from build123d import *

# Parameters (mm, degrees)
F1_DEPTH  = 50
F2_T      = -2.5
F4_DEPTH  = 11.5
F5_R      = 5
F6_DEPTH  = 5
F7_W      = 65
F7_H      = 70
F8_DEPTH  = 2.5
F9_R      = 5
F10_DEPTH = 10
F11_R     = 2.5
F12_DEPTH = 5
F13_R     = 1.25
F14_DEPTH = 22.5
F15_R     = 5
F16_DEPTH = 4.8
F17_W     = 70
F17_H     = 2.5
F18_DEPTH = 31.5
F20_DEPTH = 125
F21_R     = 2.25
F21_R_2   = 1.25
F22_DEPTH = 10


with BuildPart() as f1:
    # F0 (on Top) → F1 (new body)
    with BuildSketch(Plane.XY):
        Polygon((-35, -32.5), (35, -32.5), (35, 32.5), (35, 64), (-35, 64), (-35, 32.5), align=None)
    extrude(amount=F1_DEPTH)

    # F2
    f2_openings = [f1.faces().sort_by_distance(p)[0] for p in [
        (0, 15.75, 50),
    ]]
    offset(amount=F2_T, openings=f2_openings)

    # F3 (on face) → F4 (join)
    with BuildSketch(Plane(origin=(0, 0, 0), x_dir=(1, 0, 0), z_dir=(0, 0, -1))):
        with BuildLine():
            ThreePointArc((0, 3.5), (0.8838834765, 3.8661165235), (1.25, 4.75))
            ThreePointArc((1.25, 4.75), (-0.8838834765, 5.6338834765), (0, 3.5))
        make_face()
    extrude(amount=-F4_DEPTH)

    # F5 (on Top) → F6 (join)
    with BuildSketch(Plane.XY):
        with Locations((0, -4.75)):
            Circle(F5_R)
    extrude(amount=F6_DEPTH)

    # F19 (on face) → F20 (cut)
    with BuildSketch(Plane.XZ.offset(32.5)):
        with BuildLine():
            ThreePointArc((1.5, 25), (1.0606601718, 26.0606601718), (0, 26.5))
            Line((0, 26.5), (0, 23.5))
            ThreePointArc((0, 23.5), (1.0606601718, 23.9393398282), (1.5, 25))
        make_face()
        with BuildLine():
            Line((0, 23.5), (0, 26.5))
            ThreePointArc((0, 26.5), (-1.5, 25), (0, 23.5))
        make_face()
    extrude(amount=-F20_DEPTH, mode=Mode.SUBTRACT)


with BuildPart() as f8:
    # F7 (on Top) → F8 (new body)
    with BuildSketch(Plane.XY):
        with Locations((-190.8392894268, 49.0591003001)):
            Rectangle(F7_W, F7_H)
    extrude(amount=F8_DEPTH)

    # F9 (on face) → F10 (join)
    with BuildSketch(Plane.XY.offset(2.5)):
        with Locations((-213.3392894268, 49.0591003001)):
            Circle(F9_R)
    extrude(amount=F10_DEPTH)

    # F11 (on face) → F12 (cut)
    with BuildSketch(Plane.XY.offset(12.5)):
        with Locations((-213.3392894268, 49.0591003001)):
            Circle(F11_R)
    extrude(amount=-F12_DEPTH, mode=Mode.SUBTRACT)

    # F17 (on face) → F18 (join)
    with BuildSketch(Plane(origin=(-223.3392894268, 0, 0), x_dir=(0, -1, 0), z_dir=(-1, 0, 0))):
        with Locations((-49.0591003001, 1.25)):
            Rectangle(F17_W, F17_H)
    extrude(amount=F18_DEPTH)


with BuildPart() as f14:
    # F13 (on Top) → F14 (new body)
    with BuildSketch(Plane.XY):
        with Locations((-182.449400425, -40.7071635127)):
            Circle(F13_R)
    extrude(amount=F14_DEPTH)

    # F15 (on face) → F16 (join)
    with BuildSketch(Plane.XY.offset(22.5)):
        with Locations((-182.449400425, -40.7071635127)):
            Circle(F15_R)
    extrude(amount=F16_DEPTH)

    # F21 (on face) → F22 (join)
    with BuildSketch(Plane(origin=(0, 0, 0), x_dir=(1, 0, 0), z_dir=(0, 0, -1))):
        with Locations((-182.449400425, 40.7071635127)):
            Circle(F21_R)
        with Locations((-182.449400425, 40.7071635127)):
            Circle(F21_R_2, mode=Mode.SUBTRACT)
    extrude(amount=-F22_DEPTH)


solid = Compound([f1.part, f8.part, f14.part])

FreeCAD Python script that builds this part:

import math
import FreeCAD as App
import Part
import Sketcher

V = App.Vector


def faces_at(feature, points):
    """Names of the faces that lie closest to the given points."""
    faces = feature.Shape.Faces
    near = lambda p: min(range(len(faces)), key=lambda i: faces[i].distToShape(Part.Vertex(*p))[0])
    return sorted({f"Face{near(p) + 1}" for p in points})


def add_polygon(sketch, points):
    """Adds a closed chain of lines whose ends are joined by coincident constraints."""
    first, n = sketch.GeometryCount, len(points)
    for a, b in zip(points, points[1:] + points[:1]):
        sketch.addGeometry(Part.LineSegment(App.Vector(*a, 0), App.Vector(*b, 0)), False)
    for i in range(n):
        sketch.addConstraint(Sketcher.Constraint("Coincident", first + i, 2, first + (i + 1) % n, 1))

doc = App.newDocument("Part")
body = doc.addObject("PartDesign::Body", "Body")

# Sketch on XY plane
sketch1 = body.newObject("Sketcher::SketchObject", "Sketch")
sketch1.AttachmentSupport = (doc.getObject("XY_Plane"), [""])
sketch1.MapMode = "FlatFace"
add_polygon(sketch1, [(-35, -32.5), (35, -32.5), (35, 64), (-35, 64)])  # lines 0-3
sketch1.addConstraint(Sketcher.Constraint("Horizontal", 0))
sketch1.addConstraint(Sketcher.Constraint("Vertical", 1))
sketch1.addConstraint(Sketcher.Constraint("Horizontal", 2))
sketch1.addConstraint(Sketcher.Constraint("Vertical", 3))
sketch1.addConstraint(Sketcher.Constraint("DistanceX", 0, 1, 0, 2, 70.0))
sketch1.addConstraint(Sketcher.Constraint("DistanceY", 1, 1, 1, 2, 96.5))
sketch1.addConstraint(Sketcher.Constraint("DistanceX", -1, 1, 0, 2, 35.0))
sketch1.addConstraint(Sketcher.Constraint("DistanceY", -1, 1, 1, 2, 64.0))
pad1 = body.newObject("PartDesign::Pad", "Pad")
pad1.Profile = sketch1
pad1.Length = 50
doc.recompute()

thickness = body.newObject("PartDesign::Thickness", "Thickness")
thickness.Base = (pad1, faces_at(pad1, [(0, 15.75, 50)]))
thickness.Value = 2.5
thickness.Reversed = True
thickness.Join = "Arc"

# Sketch on XY plane
sketch2 = body.newObject("Sketcher::SketchObject", "Sketch001")
sketch2.AttachmentSupport = (doc.getObject("XY_Plane"), [""])
sketch2.MapMode = "FlatFace"
sketch2.addGeometry(Part.ArcOfCircle(Part.Circle(V(0, -4.75, 0), V(0, 0, 1), 1.25), math.radians(0), math.radians(90)), False)
sketch2.addGeometry(Part.ArcOfCircle(Part.Circle(V(0, -4.75, 0), V(0, 0, 1), 1.25), math.radians(90), math.radians(360)), False)
sketch2.addConstraint(Sketcher.Constraint("Tangent", 0, 1, 1, 2))
sketch2.addConstraint(Sketcher.Constraint("Coincident", 1, 1, 0, 2))
sketch2.addConstraint(Sketcher.Constraint("PointOnObject", 0, 3, -2))
sketch2.addConstraint(Sketcher.Constraint("PointOnObject", 1, 1, -2))
sketch2.addConstraint(Sketcher.Constraint("Horizontal", 1, 3, 0, 1))
sketch2.addConstraint(Sketcher.Constraint("Radius", 0, 1.25))
sketch2.addConstraint(Sketcher.Constraint("DistanceY", 1, 1, -1, 1, 3.5))
pad2 = body.newObject("PartDesign::Pad", "Pad001")
pad2.Profile = sketch2
pad2.Length = 11.5

# Sketch on XY plane
sketch3 = body.newObject("Sketcher::SketchObject", "Sketch002")
sketch3.AttachmentSupport = (doc.getObject("XY_Plane"), [""])
sketch3.MapMode = "FlatFace"
sketch3.addGeometry(Part.Circle(V(0, -4.75, 0), V(0, 0, 1), 5), False)
sketch3.addConstraint(Sketcher.Constraint("PointOnObject", 0, 3, -2))
sketch3.addConstraint(Sketcher.Constraint("Diameter", 0, 10.0))
sketch3.addConstraint(Sketcher.Constraint("DistanceY", 0, 3, -1, 1, 4.75))
pad3 = body.newObject("PartDesign::Pad", "Pad002")
pad3.Profile = sketch3
pad3.Length = 5

# Sketch on XZ plane
sketch4 = body.newObject("Sketcher::SketchObject", "Sketch003")
sketch4.AttachmentSupport = (doc.getObject("XZ_Plane"), [""])
sketch4.MapMode = "FlatFace"
sketch4.AttachmentOffset = App.Placement(V(0, 0, 32.5), App.Rotation())
sketch4.addGeometry(Part.ArcOfCircle(Part.Circle(V(0, 25, 0), V(0, 0, 1), 1.5), math.radians(0), math.radians(90)), False)
sketch4.addGeometry(Part.ArcOfCircle(Part.Circle(V(0, 25, 0), V(0, 0, 1), 1.5), math.radians(90), math.radians(270)), False)
sketch4.addGeometry(Part.ArcOfCircle(Part.Circle(V(0, 25, 0), V(0, 0, 1), 1.5), math.radians(-90), math.radians(0)), False)
sketch4.addConstraint(Sketcher.Constraint("Tangent", 0, 2, 1, 1))
sketch4.addConstraint(Sketcher.Constraint("Tangent", 1, 2, 2, 1))
sketch4.addConstraint(Sketcher.Constraint("Tangent", 2, 2, 0, 1))
sketch4.addConstraint(Sketcher.Constraint("PointOnObject", 0, 3, -2))
sketch4.addConstraint(Sketcher.Constraint("PointOnObject", 0, 2, -2))
sketch4.addConstraint(Sketcher.Constraint("PointOnObject", 1, 2, -2))
sketch4.addConstraint(Sketcher.Constraint("Horizontal", 1, 3, 2, 2))
sketch4.addConstraint(Sketcher.Constraint("Radius", 0, 1.5))
sketch4.addConstraint(Sketcher.Constraint("DistanceY", -1, 1, 0, 3, 25.0))
pocket1 = body.newObject("PartDesign::Pocket", "Pocket")
pocket1.Profile = sketch4
pocket1.Length = 125
body2 = doc.addObject("PartDesign::Body", "Body001")

# Sketch on XY plane
sketch5 = body2.newObject("Sketcher::SketchObject", "Sketch004")
sketch5.AttachmentSupport = (doc.getObject("XY_Plane001"), [""])
sketch5.MapMode = "FlatFace"
add_polygon(sketch5, [(-223.339289, 84.0591), (-223.339289, 14.0591), (-158.339289, 14.0591), (-158.339289, 84.0591)])  # lines 0-3
sketch5.addConstraint(Sketcher.Constraint("Vertical", 0))
sketch5.addConstraint(Sketcher.Constraint("Horizontal", 1))
sketch5.addConstraint(Sketcher.Constraint("Vertical", 2))
sketch5.addConstraint(Sketcher.Constraint("Horizontal", 3))
sketch5.addConstraint(Sketcher.Constraint("DistanceX", 1, 1, 1, 2, 65.0))
sketch5.addConstraint(Sketcher.Constraint("DistanceY", 0, 2, 0, 1, 70.0))
sketch5.addConstraint(Sketcher.Constraint("DistanceY", -1, 1, 0, 2, 14.0591))
sketch5.addConstraint(Sketcher.Constraint("DistanceX", 0, 2, -1, 1, 223.339289))
pad4 = body2.newObject("PartDesign::Pad", "Pad003")
pad4.Profile = sketch5
pad4.Length = 2.5

# Sketch on XY plane
sketch6 = body2.newObject("Sketcher::SketchObject", "Sketch005")
sketch6.AttachmentSupport = (doc.getObject("XY_Plane001"), [""])
sketch6.MapMode = "FlatFace"
sketch6.AttachmentOffset = App.Placement(V(0, 0, 2.5), App.Rotation())
sketch6.addGeometry(Part.Circle(V(-213.339289, 49.0591, 0), V(0, 0, 1), 5), False)
sketch6.addConstraint(Sketcher.Constraint("Diameter", 0, 10.0))
sketch6.addConstraint(Sketcher.Constraint("DistanceY", -1, 1, 0, 3, 49.0591))
sketch6.addConstraint(Sketcher.Constraint("DistanceX", 0, 3, -1, 1, 213.339289))
pad5 = body2.newObject("PartDesign::Pad", "Pad004")
pad5.Profile = sketch6
pad5.Length = 10

# Sketch on XY plane
sketch7 = body2.newObject("Sketcher::SketchObject", "Sketch006")
sketch7.AttachmentSupport = (doc.getObject("XY_Plane001"), [""])
sketch7.MapMode = "FlatFace"
sketch7.AttachmentOffset = App.Placement(V(0, 0, 12.5), App.Rotation())
sketch7.addGeometry(Part.Circle(V(-213.339289, 49.0591, 0), V(0, 0, 1), 2.5), False)
sketch7.addConstraint(Sketcher.Constraint("Diameter", 0, 5.0))
sketch7.addConstraint(Sketcher.Constraint("DistanceY", -1, 1, 0, 3, 49.0591))
sketch7.addConstraint(Sketcher.Constraint("DistanceX", 0, 3, -1, 1, 213.339289))
pocket2 = body2.newObject("PartDesign::Pocket", "Pocket001")
pocket2.Profile = sketch7
pocket2.Length = 5

# Sketch on YZ plane
sketch8 = body2.newObject("Sketcher::SketchObject", "Sketch007")
sketch8.AttachmentSupport = (doc.getObject("YZ_Plane001"), [""])
sketch8.MapMode = "FlatFace"
sketch8.AttachmentOffset = App.Placement(V(0, 0, -223.339289), App.Rotation())
add_polygon(sketch8, [(84.0591, 2.5), (84.0591, 0), (14.0591, 0), (14.0591, 2.5)])  # lines 0-3
sketch8.addConstraint(Sketcher.Constraint("Vertical", 0))
sketch8.addConstraint(Sketcher.Constraint("Horizontal", 1))
sketch8.addConstraint(Sketcher.Constraint("Vertical", 2))
sketch8.addConstraint(Sketcher.Constraint("Horizontal", 3))
sketch8.addConstraint(Sketcher.Constraint("PointOnObject", 0, 2, -1))
sketch8.addConstraint(Sketcher.Constraint("DistanceX", 1, 2, 1, 1, 70.0))
sketch8.addConstraint(Sketcher.Constraint("DistanceY", 0, 2, 0, 1, 2.5))
sketch8.addConstraint(Sketcher.Constraint("DistanceX", -1, 1, 0, 2, 84.0591))
pad6 = body2.newObject("PartDesign::Pad", "Pad005")
pad6.Profile = sketch8
pad6.Length = 31.5
pad6.Reversed = True
body3 = doc.addObject("PartDesign::Body", "Body002")

# Sketch on XY plane
sketch9 = body3.newObject("Sketcher::SketchObject", "Sketch008")
sketch9.AttachmentSupport = (doc.getObject("XY_Plane002"), [""])
sketch9.MapMode = "FlatFace"
sketch9.addGeometry(Part.Circle(V(-182.4494, -40.707164, 0), V(0, 0, 1), 1.25), False)
sketch9.addConstraint(Sketcher.Constraint("Diameter", 0, 2.5))
sketch9.addConstraint(Sketcher.Constraint("DistanceX", 0, 3, -1, 1, 182.4494))
sketch9.addConstraint(Sketcher.Constraint("DistanceY", 0, 3, -1, 1, 40.707164))
pad7 = body3.newObject("PartDesign::Pad", "Pad006")
pad7.Profile = sketch9
pad7.Length = 22.5

# Sketch on XY plane
sketch10 = body3.newObject("Sketcher::SketchObject", "Sketch009")
sketch10.AttachmentSupport = (doc.getObject("XY_Plane002"), [""])
sketch10.MapMode = "FlatFace"
sketch10.AttachmentOffset = App.Placement(V(0, 0, 22.5), App.Rotation())
sketch10.addGeometry(Part.Circle(V(-182.4494, -40.707164, 0), V(0, 0, 1), 5), False)
sketch10.addConstraint(Sketcher.Constraint("Diameter", 0, 10.0))
sketch10.addConstraint(Sketcher.Constraint("DistanceX", 0, 3, -1, 1, 182.4494))
sketch10.addConstraint(Sketcher.Constraint("DistanceY", 0, 3, -1, 1, 40.707164))
pad8 = body3.newObject("PartDesign::Pad", "Pad007")
pad8.Profile = sketch10
pad8.Length = 4.8

# Sketch on XY plane
sketch11 = body3.newObject("Sketcher::SketchObject", "Sketch010")
sketch11.AttachmentSupport = (doc.getObject("XY_Plane002"), [""])
sketch11.MapMode = "FlatFace"
sketch11.addGeometry(Part.Circle(V(-182.4494, -40.707164, 0), V(0, 0, 1), 2.25), False)
sketch11.addGeometry(Part.Circle(V(-182.4494, -40.707164, 0), V(0, 0, 1), 1.25), False)
sketch11.addConstraint(Sketcher.Constraint("Coincident", 1, 3, 0, 3))
sketch11.addConstraint(Sketcher.Constraint("Diameter", 0, 4.5))
sketch11.addConstraint(Sketcher.Constraint("Diameter", 1, 2.5))
sketch11.addConstraint(Sketcher.Constraint("DistanceX", 0, 3, -1, 1, 182.4494))
sketch11.addConstraint(Sketcher.Constraint("DistanceY", 0, 3, -1, 1, 40.707164))
pad9 = body3.newObject("PartDesign::Pad", "Pad008")
pad9.Profile = sketch11
pad9.Length = 10

doc.recompute()
